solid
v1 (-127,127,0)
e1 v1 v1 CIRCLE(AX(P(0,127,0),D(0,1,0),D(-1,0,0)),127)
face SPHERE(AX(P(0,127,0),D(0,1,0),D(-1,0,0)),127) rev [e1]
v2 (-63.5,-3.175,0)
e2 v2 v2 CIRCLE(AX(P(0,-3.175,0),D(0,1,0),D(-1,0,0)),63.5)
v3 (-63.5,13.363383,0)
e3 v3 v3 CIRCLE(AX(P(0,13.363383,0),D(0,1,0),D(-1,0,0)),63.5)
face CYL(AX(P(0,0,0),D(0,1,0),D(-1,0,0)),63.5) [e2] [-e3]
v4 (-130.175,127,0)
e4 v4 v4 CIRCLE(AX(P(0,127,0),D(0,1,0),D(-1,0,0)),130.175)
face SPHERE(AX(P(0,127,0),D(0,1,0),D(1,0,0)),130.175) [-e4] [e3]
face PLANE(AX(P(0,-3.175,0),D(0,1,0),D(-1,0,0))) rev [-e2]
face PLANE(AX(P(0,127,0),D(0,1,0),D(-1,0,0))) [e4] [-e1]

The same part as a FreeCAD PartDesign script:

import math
import FreeCAD as App
import Part
import Sketcher
Q = App.Units.Quantity

doc = App.newDocument("Part")
body = doc.addObject("PartDesign::Body", "Body")

sketch1 = body.newObject("Sketcher::SketchObject", "Sketch")
sketch1.AttachmentSupport = (doc.getObject("XY_Plane"), [""])
sketch1.MapMode = "FlatFace"
sketch1.addGeometry([
    Part.LineSegment(App.Vector(0, 0, 0), App.Vector(0, -3.2, 0)),
    Part.LineSegment(App.Vector(0, -3.2, 0), App.Vector(63.5, -3.2, 0)),
    Part.LineSegment(App.Vector(63.5, -3.2, 0), App.Vector(63.5, 13.4, 0)),
    Part.ArcOfCircle(Part.Circle(App.Vector(0, 127, 0), App.Vector(0, 0, 1), 130.2), math.radians(-61), math.radians(0)),
    Part.LineSegment(App.Vector(130.2, 127, 0), App.Vector(127, 127, 0)),
    Part.ArcOfCircle(Part.Circle(App.Vector(0, 127, 0), App.Vector(0, 0, 1), 127), math.radians(-90), math.radians(0)),
], False)
sketch1.addConstraint([
    Sketcher.Constraint("Coincident", 0, 2, 1, 1),
    Sketcher.Constraint("Coincident", 1, 2, 2, 1),
    Sketcher.Constraint("Coincident", 2, 2, 3, 1),
    Sketcher.Constraint("Coincident", 3, 2, 4, 1),
    Sketcher.Constraint("Coincident", 4, 2, 5, 2),
    Sketcher.Constraint("Coincident", 5, 1, 0, 1),
    Sketcher.Constraint("Vertical", 0),
    Sketcher.Constraint("Horizontal", 1),
    Sketcher.Constraint("Vertical", 2),
    Sketcher.Constraint("Horizontal", 4),
    Sketcher.Constraint("Coincident", 5, 1, -1, 1),
    Sketcher.Constraint("Coincident", 5, 3, 3, 3),
    Sketcher.Constraint("PointOnObject", 3, 3, -2),
    Sketcher.Constraint("Horizontal", 5, 3, 3, 2),
    Sketcher.Constraint("Equal", 4, 0),
    Sketcher.Constraint("Radius", 5, Q("5 in")),
    Sketcher.Constraint("DistanceX", 1, 1, 1, 2, Q("2.5 in")),
    Sketcher.Constraint("Radius", 3, Q("5.125 in")),
])
revolution = body.newObject("PartDesign::Revolution", "Revolution")
revolution.Profile = sketch1
revolution.ReferenceAxis = (sketch1, ["V_Axis"])
revolution.Angle = 360

doc.recompute()
